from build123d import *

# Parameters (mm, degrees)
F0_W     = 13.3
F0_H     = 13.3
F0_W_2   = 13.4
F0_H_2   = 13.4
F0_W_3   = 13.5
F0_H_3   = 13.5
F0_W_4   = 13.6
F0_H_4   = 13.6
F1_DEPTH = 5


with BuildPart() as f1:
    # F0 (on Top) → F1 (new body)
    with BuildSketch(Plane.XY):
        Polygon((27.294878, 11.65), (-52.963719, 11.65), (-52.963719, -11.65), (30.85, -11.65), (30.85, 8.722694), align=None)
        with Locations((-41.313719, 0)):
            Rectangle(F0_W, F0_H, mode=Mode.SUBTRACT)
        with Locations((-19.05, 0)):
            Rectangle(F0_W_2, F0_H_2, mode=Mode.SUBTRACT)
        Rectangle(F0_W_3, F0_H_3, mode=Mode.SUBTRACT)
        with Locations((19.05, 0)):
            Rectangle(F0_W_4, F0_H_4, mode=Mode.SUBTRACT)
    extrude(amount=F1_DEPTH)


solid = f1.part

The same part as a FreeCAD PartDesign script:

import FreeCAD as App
import Part
import Sketcher

V = App.Vector


def add_polygon(sketch, points):
    """Adds a closed chain of lines whose ends are joined by coincident constraints."""
    first, n = sketch.GeometryCount, len(points)
    for a, b in zip(points, points[1:] + points[:1]):
        sketch.addGeometry(Part.LineSegment(App.Vector(*a, 0), App.Vector(*b, 0)), False)
    for i in range(n):
        sketch.addConstraint(Sketcher.Constraint("Coincident", first + i, 2, first + (i + 1) % n, 1))

doc = App.newDocument("Part")
body = doc.addObject("PartDesign::Body", "Body")

# Sketch on XY plane
sketch1 = body.newObject("Sketcher::SketchObject", "Sketch")
sketch1.AttachmentSupport = (doc.getObject("XY_Plane"), [""])
sketch1.MapMode = "FlatFace"
add_polygon(sketch1, [(27.3, 11.7), (-53, 11.7), (-53, -11.7), (30.9, -11.7), (30.9, 8.7)])  # lines 0-4
add_polygon(sketch1, [(-34.7, -6.7), (-48, -6.7), (-48, 6.7), (-34.7, 6.7)])  # lines 5-8
add_polygon(sketch1, [(-12.3, -6.7), (-25.8, -6.7), (-25.8, 6.7), (-12.3, 6.7)])  # lines 9-12
add_polygon(sketch1, [(6.8, -6.8), (-6.8, -6.8), (-6.8, 6.8), (6.8, 6.8)])  # lines 13-16
add_polygon(sketch1, [(25.9, -6.8), (12.2, -6.8), (12.2, 6.8), (25.9, 6.8)])  # lines 17-20
sketch1.addConstraint([
    Sketcher.Constraint("Horizontal", 0),
    Sketcher.Constraint("Vertical", 1),
    Sketcher.Constraint("Horizontal", 2),
    Sketcher.Constraint("Vertical", 3),
    Sketcher.Constraint("Horizontal", 5),
    Sketcher.Constraint("Vertical", 6),
    Sketcher.Constraint("Horizontal", 7),
    Sketcher.Constraint("Vertical", 8),
    Sketcher.Constraint("Horizontal", 9),
    Sketcher.Constraint("Vertical", 10),
    Sketcher.Constraint("Horizontal", 11),
    Sketcher.Constraint("Vertical", 12),
    Sketcher.Constraint("Horizontal", 13),
    Sketcher.Constraint("Vertical", 14),
    Sketcher.Constraint("Horizontal", 15),
    Sketcher.Constraint("Vertical", 16),
    Sketcher.Constraint("Horizontal", 17),
    Sketcher.Constraint("Vertical", 18),
    Sketcher.Constraint("Horizontal", 19),
    Sketcher.Constraint("Vertical", 20),
    Sketcher.Constraint("Symmetric", 13, 2, 15, 2, -1, 1),
    Sketcher.Constraint("Equal", 7, 6),
    Sketcher.Constraint("Equal", 11, 10),
    Sketcher.Constraint("Equal", 15, 14),
    Sketcher.Constraint("Equal", 19, 18),
    Sketcher.Constraint("DistanceX", 5, 2, 5, 1, 13.3),
    Sketcher.Constraint("DistanceX", 9, 2, 9, 1, 13.4),
    Sketcher.Constraint("DistanceX", 13, 2, 13, 1, 13.5),
    Sketcher.Constraint("DistanceX", 17, 2, 17, 1, 13.6),
    Sketcher.Constraint("DistanceY", 1, 2, 1, 1, 23.3),
    Sketcher.Constraint("DistanceX", 1, 2, 5, 2, 5.0),
    Sketcher.Constraint("DistanceY", 1, 2, 5, 2, 5.0),
    Sketcher.Constraint("DistanceX", 9, 2, 13, 2, 19.0),
    Sketcher.Constraint("DistanceX", 13, 2, 17, 2, 19.0),
    Sketcher.Constraint("DistanceX", 19, 2, 3, 2, 5.0),
    Sketcher.Constraint("DistanceY", 9, 2, -1, 1, 6.7),
    Sketcher.Constraint("DistanceY", 17, 2, -1, 1, 6.8),
    Sketcher.Constraint("DistanceY", 13, 2, 8, 2, 0.1),
    Sketcher.Constraint("DistanceX", 2, 1, 2, 2, 83.813719),
    Sketcher.Constraint("DistanceX", 0, 2, 0, 1, 80.258597),
    Sketcher.Constraint("DistanceY", 3, 1, 3, 2, 20.372694),
])
pad1 = body.newObject("PartDesign::Pad", "Pad")
pad1.Profile = sketch1
pad1.Length = 5

doc.recompute()
